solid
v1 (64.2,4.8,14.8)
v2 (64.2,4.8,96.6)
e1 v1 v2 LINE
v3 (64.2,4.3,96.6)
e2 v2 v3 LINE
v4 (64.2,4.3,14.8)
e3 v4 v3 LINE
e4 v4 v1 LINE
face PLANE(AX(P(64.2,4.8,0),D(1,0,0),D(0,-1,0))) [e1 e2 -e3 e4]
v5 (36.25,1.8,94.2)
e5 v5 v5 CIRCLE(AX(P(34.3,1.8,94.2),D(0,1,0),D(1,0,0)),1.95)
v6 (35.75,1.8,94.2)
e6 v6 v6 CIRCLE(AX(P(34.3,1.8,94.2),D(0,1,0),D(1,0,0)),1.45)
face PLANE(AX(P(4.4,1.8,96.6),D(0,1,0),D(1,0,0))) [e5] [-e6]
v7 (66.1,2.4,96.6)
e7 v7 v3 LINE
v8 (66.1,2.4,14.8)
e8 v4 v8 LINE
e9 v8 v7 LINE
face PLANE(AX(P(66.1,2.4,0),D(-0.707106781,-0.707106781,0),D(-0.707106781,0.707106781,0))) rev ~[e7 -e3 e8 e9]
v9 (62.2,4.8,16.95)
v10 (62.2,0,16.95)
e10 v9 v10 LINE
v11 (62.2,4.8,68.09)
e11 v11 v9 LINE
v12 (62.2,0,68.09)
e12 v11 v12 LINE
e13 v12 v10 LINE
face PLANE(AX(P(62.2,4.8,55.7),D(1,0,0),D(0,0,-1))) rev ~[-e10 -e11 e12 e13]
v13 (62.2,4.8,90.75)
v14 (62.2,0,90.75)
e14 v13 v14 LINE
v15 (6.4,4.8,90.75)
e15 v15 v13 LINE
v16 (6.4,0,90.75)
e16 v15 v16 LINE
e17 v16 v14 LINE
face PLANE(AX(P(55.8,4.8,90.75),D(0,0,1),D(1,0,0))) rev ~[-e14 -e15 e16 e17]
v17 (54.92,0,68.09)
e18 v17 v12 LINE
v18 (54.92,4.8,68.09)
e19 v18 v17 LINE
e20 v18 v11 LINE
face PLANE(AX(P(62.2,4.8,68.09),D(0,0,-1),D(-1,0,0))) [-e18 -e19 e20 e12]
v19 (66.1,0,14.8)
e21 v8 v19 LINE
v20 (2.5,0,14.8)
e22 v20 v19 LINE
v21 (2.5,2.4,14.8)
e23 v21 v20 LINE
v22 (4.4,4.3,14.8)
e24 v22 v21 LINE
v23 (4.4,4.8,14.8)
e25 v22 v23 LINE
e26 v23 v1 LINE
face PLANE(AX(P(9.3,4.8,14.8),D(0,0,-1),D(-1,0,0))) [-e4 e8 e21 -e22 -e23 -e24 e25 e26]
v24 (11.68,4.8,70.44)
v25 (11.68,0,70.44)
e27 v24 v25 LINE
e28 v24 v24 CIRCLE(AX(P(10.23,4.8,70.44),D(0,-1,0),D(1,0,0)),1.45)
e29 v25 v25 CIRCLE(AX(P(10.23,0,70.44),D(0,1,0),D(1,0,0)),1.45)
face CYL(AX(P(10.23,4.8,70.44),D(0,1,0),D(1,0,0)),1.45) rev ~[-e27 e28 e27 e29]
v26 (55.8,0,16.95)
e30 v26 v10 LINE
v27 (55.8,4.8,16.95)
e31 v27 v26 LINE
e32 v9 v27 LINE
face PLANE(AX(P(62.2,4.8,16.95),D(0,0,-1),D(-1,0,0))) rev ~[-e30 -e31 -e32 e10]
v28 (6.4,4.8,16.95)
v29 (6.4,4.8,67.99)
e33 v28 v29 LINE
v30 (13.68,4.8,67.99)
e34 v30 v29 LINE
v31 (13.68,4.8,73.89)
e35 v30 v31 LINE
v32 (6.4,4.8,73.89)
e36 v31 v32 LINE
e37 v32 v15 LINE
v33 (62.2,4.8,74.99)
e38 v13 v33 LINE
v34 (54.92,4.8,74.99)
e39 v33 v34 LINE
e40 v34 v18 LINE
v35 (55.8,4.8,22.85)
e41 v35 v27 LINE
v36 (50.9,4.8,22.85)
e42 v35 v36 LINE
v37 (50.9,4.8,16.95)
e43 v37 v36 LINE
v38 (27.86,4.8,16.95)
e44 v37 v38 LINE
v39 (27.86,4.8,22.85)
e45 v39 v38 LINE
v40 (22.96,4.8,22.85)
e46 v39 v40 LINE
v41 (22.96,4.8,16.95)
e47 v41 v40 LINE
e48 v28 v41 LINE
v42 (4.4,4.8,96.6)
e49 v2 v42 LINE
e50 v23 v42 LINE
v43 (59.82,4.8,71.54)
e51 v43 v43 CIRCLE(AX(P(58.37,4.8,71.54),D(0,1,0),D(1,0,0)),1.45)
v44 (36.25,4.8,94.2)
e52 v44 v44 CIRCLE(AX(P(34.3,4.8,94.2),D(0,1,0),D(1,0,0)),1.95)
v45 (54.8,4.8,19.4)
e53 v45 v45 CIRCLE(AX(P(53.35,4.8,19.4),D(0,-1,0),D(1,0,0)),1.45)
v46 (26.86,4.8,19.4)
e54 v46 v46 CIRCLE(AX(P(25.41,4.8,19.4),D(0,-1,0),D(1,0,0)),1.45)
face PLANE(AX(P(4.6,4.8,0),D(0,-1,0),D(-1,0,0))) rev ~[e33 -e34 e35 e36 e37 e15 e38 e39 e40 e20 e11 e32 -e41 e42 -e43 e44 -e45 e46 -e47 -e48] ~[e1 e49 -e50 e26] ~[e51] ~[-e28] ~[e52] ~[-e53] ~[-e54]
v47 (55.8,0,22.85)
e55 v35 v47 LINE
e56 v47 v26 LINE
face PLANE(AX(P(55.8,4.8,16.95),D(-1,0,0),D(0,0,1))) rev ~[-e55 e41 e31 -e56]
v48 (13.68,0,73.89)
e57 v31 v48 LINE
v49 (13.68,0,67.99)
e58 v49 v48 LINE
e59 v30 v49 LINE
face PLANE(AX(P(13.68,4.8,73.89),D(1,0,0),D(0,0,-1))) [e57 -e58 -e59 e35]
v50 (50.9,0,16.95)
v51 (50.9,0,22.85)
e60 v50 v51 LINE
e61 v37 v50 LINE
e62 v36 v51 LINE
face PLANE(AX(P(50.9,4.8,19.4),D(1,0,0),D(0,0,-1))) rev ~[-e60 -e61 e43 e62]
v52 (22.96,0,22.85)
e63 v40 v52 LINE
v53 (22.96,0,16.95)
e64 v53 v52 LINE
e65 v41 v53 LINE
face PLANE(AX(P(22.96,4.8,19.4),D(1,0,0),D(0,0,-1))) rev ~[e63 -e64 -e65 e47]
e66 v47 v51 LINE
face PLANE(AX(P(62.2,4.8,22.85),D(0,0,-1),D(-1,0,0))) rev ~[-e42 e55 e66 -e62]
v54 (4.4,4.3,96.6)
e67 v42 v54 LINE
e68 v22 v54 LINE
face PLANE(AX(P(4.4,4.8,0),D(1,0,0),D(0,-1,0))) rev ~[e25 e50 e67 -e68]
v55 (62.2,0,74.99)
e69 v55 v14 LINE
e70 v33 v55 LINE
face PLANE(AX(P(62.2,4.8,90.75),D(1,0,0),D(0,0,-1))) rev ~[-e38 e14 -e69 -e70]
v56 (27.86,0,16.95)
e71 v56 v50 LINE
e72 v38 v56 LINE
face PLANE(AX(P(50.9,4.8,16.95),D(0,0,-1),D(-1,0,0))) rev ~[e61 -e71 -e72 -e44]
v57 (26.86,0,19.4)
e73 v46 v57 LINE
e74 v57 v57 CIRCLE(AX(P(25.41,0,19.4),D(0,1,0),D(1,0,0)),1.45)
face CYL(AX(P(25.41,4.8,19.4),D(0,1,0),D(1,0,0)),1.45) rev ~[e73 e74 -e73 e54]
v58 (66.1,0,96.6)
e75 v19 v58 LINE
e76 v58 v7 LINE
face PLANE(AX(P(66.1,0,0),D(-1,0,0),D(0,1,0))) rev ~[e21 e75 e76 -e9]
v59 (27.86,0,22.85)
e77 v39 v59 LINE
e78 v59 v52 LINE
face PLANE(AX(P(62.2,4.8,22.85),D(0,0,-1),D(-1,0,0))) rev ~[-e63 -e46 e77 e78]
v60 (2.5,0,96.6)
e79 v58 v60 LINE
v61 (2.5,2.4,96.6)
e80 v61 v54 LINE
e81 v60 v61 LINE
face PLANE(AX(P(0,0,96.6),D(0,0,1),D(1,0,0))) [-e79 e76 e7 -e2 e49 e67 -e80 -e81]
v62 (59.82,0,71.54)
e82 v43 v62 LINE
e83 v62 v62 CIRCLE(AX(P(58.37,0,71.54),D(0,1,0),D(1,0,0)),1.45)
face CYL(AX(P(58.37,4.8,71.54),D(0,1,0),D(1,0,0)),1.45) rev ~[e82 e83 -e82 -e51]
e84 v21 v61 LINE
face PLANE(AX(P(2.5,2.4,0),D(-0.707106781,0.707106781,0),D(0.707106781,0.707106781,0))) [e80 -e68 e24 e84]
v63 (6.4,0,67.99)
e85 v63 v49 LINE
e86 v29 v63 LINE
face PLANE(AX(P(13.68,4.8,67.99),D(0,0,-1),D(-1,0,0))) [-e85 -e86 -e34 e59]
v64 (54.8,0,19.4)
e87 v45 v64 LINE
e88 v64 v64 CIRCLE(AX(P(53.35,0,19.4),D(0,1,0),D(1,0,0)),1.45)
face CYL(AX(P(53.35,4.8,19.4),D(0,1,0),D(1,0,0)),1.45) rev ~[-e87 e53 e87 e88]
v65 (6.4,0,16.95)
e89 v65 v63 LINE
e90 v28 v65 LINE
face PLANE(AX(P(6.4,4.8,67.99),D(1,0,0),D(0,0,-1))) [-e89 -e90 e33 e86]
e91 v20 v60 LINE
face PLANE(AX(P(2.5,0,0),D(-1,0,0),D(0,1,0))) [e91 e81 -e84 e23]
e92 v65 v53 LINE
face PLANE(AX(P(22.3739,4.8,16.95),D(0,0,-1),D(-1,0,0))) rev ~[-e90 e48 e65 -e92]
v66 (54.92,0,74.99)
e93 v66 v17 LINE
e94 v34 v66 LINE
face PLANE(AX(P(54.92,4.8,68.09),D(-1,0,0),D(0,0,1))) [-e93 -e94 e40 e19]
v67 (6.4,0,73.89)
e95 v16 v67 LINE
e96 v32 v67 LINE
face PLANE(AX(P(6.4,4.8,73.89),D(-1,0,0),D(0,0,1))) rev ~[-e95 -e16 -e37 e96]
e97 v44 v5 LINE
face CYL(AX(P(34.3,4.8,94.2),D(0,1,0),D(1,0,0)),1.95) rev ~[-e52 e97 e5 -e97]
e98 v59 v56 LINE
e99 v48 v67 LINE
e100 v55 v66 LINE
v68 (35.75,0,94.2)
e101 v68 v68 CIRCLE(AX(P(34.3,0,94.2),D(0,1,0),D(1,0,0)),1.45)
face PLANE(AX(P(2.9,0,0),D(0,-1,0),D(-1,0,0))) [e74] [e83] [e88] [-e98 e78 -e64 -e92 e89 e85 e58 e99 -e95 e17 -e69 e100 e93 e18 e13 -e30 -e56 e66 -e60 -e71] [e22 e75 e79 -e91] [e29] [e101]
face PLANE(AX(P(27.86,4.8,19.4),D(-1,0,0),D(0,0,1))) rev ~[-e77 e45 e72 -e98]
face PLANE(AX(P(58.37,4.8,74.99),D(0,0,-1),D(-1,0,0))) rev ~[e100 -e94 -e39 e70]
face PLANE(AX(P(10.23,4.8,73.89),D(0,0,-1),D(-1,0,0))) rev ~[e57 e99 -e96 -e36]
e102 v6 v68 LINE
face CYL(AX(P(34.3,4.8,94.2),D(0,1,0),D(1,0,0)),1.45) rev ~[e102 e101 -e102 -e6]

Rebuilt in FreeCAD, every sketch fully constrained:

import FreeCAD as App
import Part
import Sketcher

V = App.Vector
Q = App.Units.Quantity


def add_polygon(sketch, points):
    """Adds a closed chain of lines whose ends are joined by coincident constraints."""
    first, n = sketch.GeometryCount, len(points)
    for a, b in zip(points, points[1:] + points[:1]):
        sketch.addGeometry(Part.LineSegment(App.Vector(*a, 0), App.Vector(*b, 0)), False)
    for i in range(n):
        sketch.addConstraint(Sketcher.Constraint("Coincident", first + i, 2, first + (i + 1) % n, 1))

doc = App.newDocument("Part")
body = doc.addObject("PartDesign::Body", "Body")

# Sketch on XY plane
sketch1 = body.newObject("Sketcher::SketchObject", "Sketch")
sketch1.AttachmentSupport = (doc.getObject("XY_Plane"), [""])
sketch1.MapMode = "FlatFace"
add_polygon(sketch1, [(2.5, 0), (66.1, 0), (66.1, 2.4), (64.2, 4.3), (64.2, 4.8), (4.4, 4.8), (4.4, 4.3), (2.5, 2.4)])  # lines 0-7
sketch1.addConstraint(Sketcher.Constraint("Horizontal", 0))
sketch1.addConstraint(Sketcher.Constraint("Vertical", 1))
sketch1.addConstraint(Sketcher.Constraint("Vertical", 3))
sketch1.addConstraint(Sketcher.Constraint("Horizontal", 4))
sketch1.addConstraint(Sketcher.Constraint("Vertical", 5))
sketch1.addConstraint(Sketcher.Constraint("Vertical", 7))
sketch1.addConstraint(Sketcher.Constraint("PointOnObject", 0, 2, -1))
sketch1.addConstraint(Sketcher.Constraint("Perpendicular", 2, 6))
sketch1.addConstraint(Sketcher.Constraint("Horizontal", 2, 2, 5, 2))
sketch1.addConstraint(Sketcher.Constraint("Horizontal", 1, 2, 6, 2))
sketch1.addConstraint(Sketcher.Constraint("Equal", 2, 6))
sketch1.addConstraint(Sketcher.Constraint("DistanceX", 0, 1, 0, 2, Q("63.6 mm")))
sketch1.addConstraint(Sketcher.Constraint("DistanceX", 4, 2, 4, 1, Q("59.8 mm")))
sketch1.addConstraint(Sketcher.Constraint("DistanceY", 1, 1, 1, 2, Q("2.4 mm")))
sketch1.addConstraint(Sketcher.Constraint("DistanceY", 3, 1, 3, 2, Q("0.5 mm")))
sketch1.addConstraint(Sketcher.Constraint("DistanceX", -1, 1, 0, 2, Q("66.1 mm")))
pad1 = body.newObject("PartDesign::Pad", "Pad")
pad1.Profile = sketch1
pad1.Length = 96.6

# Sketch on XZ plane
sketch2 = body.newObject("Sketcher::SketchObject", "Sketch001")
sketch2.AttachmentSupport = (doc.getObject("XZ_Plane"), [""])
sketch2.MapMode = "FlatFace"
sketch2.AttachmentOffset = App.Placement(V(0, 0, -4.8), App.Rotation())
sketch2.addGeometry(Part.Circle(V(34.3, 94.2, 0), V(0, 0, 1), 1.45), False)
sketch2.addConstraint(Sketcher.Constraint("Diameter", 0, Q("2.9 mm")))
sketch2.addConstraint(Sketcher.Constraint("DistanceX", -1, 1, 0, 3, Q("34.3 mm")))
sketch2.addConstraint(Sketcher.Constraint("DistanceY", -1, 1, 0, 3, Q("94.2 mm")))
pocket1 = body.newObject("PartDesign::Pocket", "Pocket")
pocket1.Profile = sketch2
pocket1.Type = "ThroughAll"
pocket1.Reversed = True

# Sketch on XZ plane
sketch3 = body.newObject("Sketcher::SketchObject", "Sketch002")
sketch3.AttachmentSupport = (doc.getObject("XZ_Plane"), [""])
sketch3.MapMode = "FlatFace"
sketch3.AttachmentOffset = App.Placement(V(0, 0, -4.8), App.Rotation())
add_polygon(sketch3, [(2.5, 0), (2.5, 14.8), (66.1, 14.8), (66.1, 0)])  # lines 0-3
sketch3.addConstraint(Sketcher.Constraint("Vertical", 0))
sketch3.addConstraint(Sketcher.Constraint("Horizontal", 1))
sketch3.addConstraint(Sketcher.Constraint("Vertical", 2))
sketch3.addConstraint(Sketcher.Constraint("Horizontal", 3))
sketch3.addConstraint(Sketcher.Constraint("PointOnObject", 2, 2, -1))
sketch3.addConstraint(Sketcher.Constraint("DistanceX", 1, 1, 1, 2, Q("63.6 mm")))
sketch3.addConstraint(Sketcher.Constraint("DistanceY", 0, 1, 0, 2, Q("14.8 mm")))
sketch3.addConstraint(Sketcher.Constraint("DistanceX", -1, 1, 0, 2, Q("2.5 mm")))
pocket2 = body.newObject("PartDesign::Pocket", "Pocket001")
pocket2.Profile = sketch3
pocket2.Type = "ThroughAll"
pocket2.Reversed = True

# Sketch on XZ plane
sketch4 = body.newObject("Sketcher::SketchObject", "Sketch003")
sketch4.AttachmentSupport = (doc.getObject("XZ_Plane"), [""])
sketch4.MapMode = "FlatFace"
sketch4.AttachmentOffset = App.Placement(V(0, 0, -4.8), App.Rotation())
sketch4.addGeometry(Part.Circle(V(10.23, 70.44, 0), V(0, 0, 1), 1.45), False)
sketch4.addGeometry(Part.Circle(V(53.35, 19.4, 0), V(0, 0, 1), 1.45), False)
sketch4.addGeometry(Part.Circle(V(25.41, 19.4, 0), V(0, 0, 1), 1.45), False)
sketch4.addGeometry(Part.Circle(V(58.37, 71.54, 0), V(0, 0, 1), 1.45), False)
sketch4.addConstraint(Sketcher.Constraint("Equal", 0, 1))
sketch4.addConstraint(Sketcher.Constraint("Equal", 1, 2))
sketch4.addConstraint(Sketcher.Constraint("Equal", 2, 3))
sketch4.addConstraint(Sketcher.Constraint("Horizontal", 1, 3, 2, 3))
sketch4.addConstraint(Sketcher.Constraint("Diameter", 0, Q("2.9 mm")))
sketch4.addConstraint(Sketcher.Constraint("DistanceY", -1, 1, 1, 3, Q("19.4 mm")))
sketch4.addConstraint(Sketcher.Constraint("DistanceY", 0, 3, 3, 3, Q("1.1 mm")))
sketch4.addConstraint(Sketcher.Constraint("DistanceX", -1, 1, 0, 3, Q("10.23 mm")))
sketch4.addConstraint(Sketcher.Constraint("DistanceY", -1, 1, 0, 3, Q("70.44 mm")))
sketch4.addConstraint(Sketcher.Constraint("DistanceX", -1, 1, 1, 3, Q("53.35 mm")))
sketch4.addConstraint(Sketcher.Constraint("DistanceX", -1, 1, 2, 3, Q("25.41 mm")))
sketch4.addConstraint(Sketcher.Constraint("DistanceX", -1, 1, 3, 3, Q("58.37 mm")))
pocket3 = body.newObject("PartDesign::Pocket", "Pocket002")
pocket3.Profile = sketch4
pocket3.Type = "ThroughAll"
pocket3.Reversed = True

# Sketch on XZ plane
sketch5 = body.newObject("Sketcher::SketchObject", "Sketch004")
sketch5.AttachmentSupport = (doc.getObject("XZ_Plane"), [""])
sketch5.MapMode = "FlatFace"
sketch5.AttachmentOffset = App.Placement(V(0, 0, -4.8), App.Rotation())
add_polygon(sketch5, [(62.2, 22.85), (6.4, 22.85), (6.4, 66.99), (13.68, 66.99), (13.68, 73.89), (6.4, 73.89), (6.4, 90.75), (62.2, 90.75), (62.2, 74.99), (54.92, 74.99), (54.92, 68.09), (62.2, 68.09)])  # lines 0-11
sketch5.addConstraint(Sketcher.Constraint("Horizontal", 0))
sketch5.addConstraint(Sketcher.Constraint("Vertical", 1))
sketch5.addConstraint(Sketcher.Constraint("Horizontal", 2))
sketch5.addConstraint(Sketcher.Constraint("Vertical", 3))
sketch5.addConstraint(Sketcher.Constraint("Horizontal", 4))
sketch5.addConstraint(Sketcher.Constraint("Vertical", 5))
sketch5.addConstraint(Sketcher.Constraint("Horizontal", 6))
sketch5.addConstraint(Sketcher.Constraint("Vertical", 7))
sketch5.addConstraint(Sketcher.Constraint("Horizontal", 8))
sketch5.addConstraint(Sketcher.Constraint("Vertical", 9))
sketch5.addConstraint(Sketcher.Constraint("Horizontal", 10))
sketch5.addConstraint(Sketcher.Constraint("Vertical", 11))
sketch5.addConstraint(Sketcher.Constraint("Vertical", 1, 2, 4, 2))
sketch5.addConstraint(Sketcher.Constraint("Vertical", 7, 2, 10, 2))
sketch5.addConstraint(Sketcher.Constraint("Equal", 4, 8))
sketch5.addConstraint(Sketcher.Constraint("Equal", 3, 9))
sketch5.addConstraint(Sketcher.Constraint("DistanceX", 0, 2, 0, 1, Q("55.8 mm")))
sketch5.addConstraint(Sketcher.Constraint("DistanceY", 3, 1, 3, 2, Q("6.9 mm")))
sketch5.addConstraint(Sketcher.Constraint("DistanceY", 2, 2, 7, 2, Q("8 mm")))
sketch5.addConstraint(Sketcher.Constraint("DistanceX", 2, 1, 2, 2, Q("7.28 mm")))
sketch5.addConstraint(Sketcher.Constraint("DistanceY", 1, 1, 1, 2, Q("44.14 mm")))
sketch5.addConstraint(Sketcher.Constraint("DistanceY", 5, 1, 5, 2, Q("16.86 mm")))
sketch5.addConstraint(Sketcher.Constraint("DistanceX", -1, 1, 0, 2, Q("6.4 mm")))
sketch5.addConstraint(Sketcher.Constraint("DistanceY", -1, 1, 0, 2, Q("22.85 mm")))
pocket4 = body.newObject("PartDesign::Pocket", "Pocket003")
pocket4.Profile = sketch5
pocket4.Type = "ThroughAll"
pocket4.Reversed = True

# Sketch on XZ plane
sketch6 = body.newObject("Sketcher::SketchObject", "Sketch005")
sketch6.AttachmentSupport = (doc.getObject("XZ_Plane"), [""])
sketch6.MapMode = "FlatFace"
sketch6.AttachmentOffset = App.Placement(V(0, 0, -4.8), App.Rotation())
add_polygon(sketch6, [(55.8, 16.95), (55.8, 22.85), (62.2, 22.85), (62.2, 16.95)])  # lines 0-3
add_polygon(sketch6, [(13.68, 66.99), (6.4, 66.99), (6.4, 67.99), (13.68, 67.99)])  # lines 4-7
add_polygon(sketch6, [(6.4, 22.85), (22.96, 22.85), (22.96, 16.95), (6.4, 16.95)])  # lines 8-11
add_polygon(sketch6, [(27.86, 22.85), (50.9, 22.85), (50.9, 16.95), (27.86, 16.95)])  # lines 12-15
sketch6.addConstraint(Sketcher.Constraint("Vertical", 0))
sketch6.addConstraint(Sketcher.Constraint("Horizontal", 1))
sketch6.addConstraint(Sketcher.Constraint("Vertical", 2))
sketch6.addConstraint(Sketcher.Constraint("Horizontal", 3))
sketch6.addConstraint(Sketcher.Constraint("Horizontal", 4))
sketch6.addConstraint(Sketcher.Constraint("Vertical", 5))
sketch6.addConstraint(Sketcher.Constraint("Horizontal", 6))
sketch6.addConstraint(Sketcher.Constraint("Vertical", 7))
sketch6.addConstraint(Sketcher.Constraint("Horizontal", 8))
sketch6.addConstraint(Sketcher.Constraint("Vertical", 9))
sketch6.addConstraint(Sketcher.Constraint("Horizontal", 10))
sketch6.addConstraint(Sketcher.Constraint("Vertical", 11))
sketch6.addConstraint(Sketcher.Constraint("Horizontal", 12))
sketch6.addConstraint(Sketcher.Constraint("Vertical", 13))
sketch6.addConstraint(Sketcher.Constraint("Horizontal", 14))
sketch6.addConstraint(Sketcher.Constraint("Vertical", 15))
sketch6.addConstraint(Sketcher.Constraint("Horizontal", 1, 2, 8, 2))
sketch6.addConstraint(Sketcher.Constraint("Horizontal", 3, 2, 9, 2))
sketch6.addConstraint(Sketcher.Constraint("Horizontal", 11, 2, 12, 2))
sketch6.addConstraint(Sketcher.Constraint("Horizontal", 10, 2, 13, 2))
sketch6.addConstraint(Sketcher.Constraint("Vertical", 5, 2, 10, 2))
sketch6.addConstraint(Sketcher.Constraint("DistanceY", 5, 1, 5, 2, Q("1 mm")))
sketch6.addConstraint(Sketcher.Constraint("DistanceX", 1, 1, 1, 2, Q("6.4 mm")))
sketch6.addConstraint(Sketcher.Constraint("DistanceY", 0, 1, 0, 2, Q("5.9 mm")))
sketch6.addConstraint(Sketcher.Constraint("DistanceX", 4, 2, 4, 1, Q("7.28 mm")))
sketch6.addConstraint(Sketcher.Constraint("DistanceX", 8, 1, 8, 2, Q("16.56 mm")))
sketch6.addConstraint(Sketcher.Constraint("DistanceX", 12, 1, 12, 2, Q("23.04 mm")))
sketch6.addConstraint(Sketcher.Constraint("DistanceX", -1, 1, 0, 2, Q("55.8 mm")))
sketch6.addConstraint(Sketcher.Constraint("DistanceX", -1, 1, 4, 2, Q("6.4 mm")))
sketch6.addConstraint(Sketcher.Constraint("DistanceX", -1, 1, 12, 2, Q("50.9 mm")))
sketch6.addConstraint(Sketcher.Constraint("DistanceY", -1, 1, 0, 2, Q("22.85 mm")))
sketch6.addConstraint(Sketcher.Constraint("DistanceY", -1, 1, 4, 2, Q("66.99 mm")))
pocket5 = body.newObject("PartDesign::Pocket", "Pocket004")
pocket5.Profile = sketch6
pocket5.Type = "ThroughAll"
pocket5.Reversed = True

# Sketch on XZ plane
sketch7 = body.newObject("Sketcher::SketchObject", "Sketch006")
sketch7.AttachmentSupport = (doc.getObject("XZ_Plane"), [""])
sketch7.MapMode = "FlatFace"
sketch7.AttachmentOffset = App.Placement(V(0, 0, -4.8), App.Rotation())
sketch7.addGeometry(Part.Circle(V(34.3, 94.2, 0), V(0, 0, 1), 1.95), False)
sketch7.addGeometry(Part.Circle(V(34.3, 94.2, 0), V(0, 0, 1), 1.45), False)
sketch7.addConstraint(Sketcher.Constraint("Coincident", 1, 3, 0, 3))
sketch7.addConstraint(Sketcher.Constraint("Diameter", 0, Q("3.9 mm")))
sketch7.addConstraint(Sketcher.Constraint("Diameter", 1, Q("2.9 mm")))
sketch7.addConstraint(Sketcher.Constraint("DistanceX", -1, 1, 0, 3, Q("34.3 mm")))
sketch7.addConstraint(Sketcher.Constraint("DistanceY", -1, 1, 0, 3, Q("94.2 mm")))
pocket6 = body.newObject("PartDesign::Pocket", "Pocket005")
pocket6.Profile = sketch7
pocket6.Length = 3
pocket6.Reversed = True

doc.recompute()
